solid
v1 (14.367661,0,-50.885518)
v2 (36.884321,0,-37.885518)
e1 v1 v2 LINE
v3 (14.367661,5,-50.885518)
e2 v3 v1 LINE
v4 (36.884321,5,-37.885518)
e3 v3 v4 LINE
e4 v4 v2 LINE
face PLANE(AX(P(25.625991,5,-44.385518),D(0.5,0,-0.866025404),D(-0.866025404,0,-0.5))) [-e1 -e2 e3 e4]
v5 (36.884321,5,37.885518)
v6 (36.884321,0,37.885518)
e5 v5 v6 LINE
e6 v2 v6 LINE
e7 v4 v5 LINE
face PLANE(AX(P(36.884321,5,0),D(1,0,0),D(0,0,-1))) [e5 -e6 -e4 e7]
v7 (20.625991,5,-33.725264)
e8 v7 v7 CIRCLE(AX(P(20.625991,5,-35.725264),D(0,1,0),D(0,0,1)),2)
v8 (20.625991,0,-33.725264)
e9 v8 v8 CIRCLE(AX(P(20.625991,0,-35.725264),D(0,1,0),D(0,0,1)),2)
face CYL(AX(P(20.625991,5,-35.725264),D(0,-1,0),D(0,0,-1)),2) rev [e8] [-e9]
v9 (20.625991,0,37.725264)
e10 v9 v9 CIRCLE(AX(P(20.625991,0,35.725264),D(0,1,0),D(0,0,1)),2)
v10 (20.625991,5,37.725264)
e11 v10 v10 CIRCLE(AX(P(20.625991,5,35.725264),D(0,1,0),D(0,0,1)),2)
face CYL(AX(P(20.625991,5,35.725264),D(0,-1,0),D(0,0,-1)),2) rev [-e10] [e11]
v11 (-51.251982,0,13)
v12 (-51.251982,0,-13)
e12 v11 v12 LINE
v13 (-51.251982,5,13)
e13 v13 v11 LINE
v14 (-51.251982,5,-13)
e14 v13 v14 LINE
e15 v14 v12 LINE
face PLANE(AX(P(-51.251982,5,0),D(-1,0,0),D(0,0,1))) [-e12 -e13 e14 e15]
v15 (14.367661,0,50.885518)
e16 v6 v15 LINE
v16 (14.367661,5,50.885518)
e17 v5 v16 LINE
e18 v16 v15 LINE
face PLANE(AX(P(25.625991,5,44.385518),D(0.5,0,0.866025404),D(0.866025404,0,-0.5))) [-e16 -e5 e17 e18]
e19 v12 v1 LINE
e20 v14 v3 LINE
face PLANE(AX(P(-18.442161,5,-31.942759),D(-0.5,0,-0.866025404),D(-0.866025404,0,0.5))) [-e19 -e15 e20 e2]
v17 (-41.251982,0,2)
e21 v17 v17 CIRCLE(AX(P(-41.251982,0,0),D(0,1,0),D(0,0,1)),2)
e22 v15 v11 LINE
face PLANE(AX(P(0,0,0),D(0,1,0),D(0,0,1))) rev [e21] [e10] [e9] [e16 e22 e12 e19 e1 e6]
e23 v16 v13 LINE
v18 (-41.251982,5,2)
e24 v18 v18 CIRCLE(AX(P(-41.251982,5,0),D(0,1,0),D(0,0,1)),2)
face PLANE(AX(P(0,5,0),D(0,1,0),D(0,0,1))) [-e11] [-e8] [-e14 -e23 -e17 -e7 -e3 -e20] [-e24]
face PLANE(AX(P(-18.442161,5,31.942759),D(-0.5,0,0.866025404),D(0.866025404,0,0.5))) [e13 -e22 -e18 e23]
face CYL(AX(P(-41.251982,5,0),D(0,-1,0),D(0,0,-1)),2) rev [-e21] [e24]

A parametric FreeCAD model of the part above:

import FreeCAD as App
import Part
import Sketcher
Q = App.Units.Quantity


def add_polygon(sketch, points):
    """Adds a closed chain of lines whose ends are joined by coincident constraints."""
    first, n = sketch.GeometryCount, len(points)
    for a, b in zip(points, points[1:] + points[:1]):
        sketch.addGeometry(Part.LineSegment(App.Vector(*a, 0), App.Vector(*b, 0)), False)
    for i in range(n):
        sketch.addConstraint(Sketcher.Constraint("Coincident", first + i, 2, first + (i + 1) % n, 1))

doc = App.newDocument("Part")
body = doc.addObject("PartDesign::Body", "Body")

sketch1 = doc.addObject("Sketcher::SketchObject", "Sketch")
body.addObject(sketch1)
sketch1.AttachmentSupport = (doc.XZ_Plane, [""])
sketch1.MapMode = "FlatFace"
add_polygon(sketch1, [(-51.3, 13), (14.4, 50.9), (36.9, 37.9), (36.9, -37.9), (14.4, -50.9), (-51.3, -13)])
sketch1.addGeometry(Part.Circle(App.Vector(20.6, 35.7, 0), App.Vector(0, 0, 1), 2), False)
sketch1.addGeometry(Part.Circle(App.Vector(20.6, -35.7, 0), App.Vector(0, 0, 1), 2), False)
sketch1.addGeometry(Part.Circle(App.Vector(-41.3, 0, 0), App.Vector(0, 0, 1), 2), False)
sketch1.addConstraint(Sketcher.Constraint("Vertical", 2))
sketch1.addConstraint(Sketcher.Constraint("Vertical", 5))
sketch1.addConstraint(Sketcher.Constraint("Equal", 6, 7))
sketch1.addConstraint(Sketcher.Constraint("Equal", 7, 8))
sketch1.addConstraint(Sketcher.Constraint("Symmetric", 6, 3, 7, 3, -1))
sketch1.addConstraint(Sketcher.Constraint("Symmetric", 0, 2, 3, 2, -1))
sketch1.addConstraint(Sketcher.Constraint("PointOnObject", 8, 3, -1))
sketch1.addConstraint(Sketcher.Constraint("Parallel", 0, 3))
sketch1.addConstraint(Sketcher.Constraint("Parallel", 1, 4))
sketch1.addConstraint(Sketcher.Constraint("Equal", 1, 3))
sketch1.addConstraint(Sketcher.Constraint("Diameter", 6, 4.0))
sketch1.addConstraint(Sketcher.Constraint("DistanceY", 5, 1, 5, 2, 26.0))
sketch1.addConstraint(Sketcher.Constraint("Angle", 0, Q("30 deg")))
sketch1.addConstraint(Sketcher.Constraint("Distance", 1, 26.0))
sketch1.addConstraint(Sketcher.Constraint("DistanceX", 4, 2, 8, 3, 10.0))
sketch1.addConstraint(Sketcher.Constraint("DistanceY", 2, 2, 2, 1, 75.771036))
sketch1.addConstraint(Sketcher.Constraint("DistanceX", -1, 1, 6, 3, 20.625991))
sketch1.addConstraint(Sketcher.Constraint("DistanceX", 8, 3, -1, 1, 41.251982))
sketch1.addConstraint(Sketcher.Constraint("DistanceY", 7, 3, 6, 3, 71.450528))
pad1 = doc.addObject("PartDesign::Pad", "Pad")
body.addObject(pad1)
pad1.Profile = sketch1
pad1.Length = 5
pad1.Reversed = True

doc.recompute()
